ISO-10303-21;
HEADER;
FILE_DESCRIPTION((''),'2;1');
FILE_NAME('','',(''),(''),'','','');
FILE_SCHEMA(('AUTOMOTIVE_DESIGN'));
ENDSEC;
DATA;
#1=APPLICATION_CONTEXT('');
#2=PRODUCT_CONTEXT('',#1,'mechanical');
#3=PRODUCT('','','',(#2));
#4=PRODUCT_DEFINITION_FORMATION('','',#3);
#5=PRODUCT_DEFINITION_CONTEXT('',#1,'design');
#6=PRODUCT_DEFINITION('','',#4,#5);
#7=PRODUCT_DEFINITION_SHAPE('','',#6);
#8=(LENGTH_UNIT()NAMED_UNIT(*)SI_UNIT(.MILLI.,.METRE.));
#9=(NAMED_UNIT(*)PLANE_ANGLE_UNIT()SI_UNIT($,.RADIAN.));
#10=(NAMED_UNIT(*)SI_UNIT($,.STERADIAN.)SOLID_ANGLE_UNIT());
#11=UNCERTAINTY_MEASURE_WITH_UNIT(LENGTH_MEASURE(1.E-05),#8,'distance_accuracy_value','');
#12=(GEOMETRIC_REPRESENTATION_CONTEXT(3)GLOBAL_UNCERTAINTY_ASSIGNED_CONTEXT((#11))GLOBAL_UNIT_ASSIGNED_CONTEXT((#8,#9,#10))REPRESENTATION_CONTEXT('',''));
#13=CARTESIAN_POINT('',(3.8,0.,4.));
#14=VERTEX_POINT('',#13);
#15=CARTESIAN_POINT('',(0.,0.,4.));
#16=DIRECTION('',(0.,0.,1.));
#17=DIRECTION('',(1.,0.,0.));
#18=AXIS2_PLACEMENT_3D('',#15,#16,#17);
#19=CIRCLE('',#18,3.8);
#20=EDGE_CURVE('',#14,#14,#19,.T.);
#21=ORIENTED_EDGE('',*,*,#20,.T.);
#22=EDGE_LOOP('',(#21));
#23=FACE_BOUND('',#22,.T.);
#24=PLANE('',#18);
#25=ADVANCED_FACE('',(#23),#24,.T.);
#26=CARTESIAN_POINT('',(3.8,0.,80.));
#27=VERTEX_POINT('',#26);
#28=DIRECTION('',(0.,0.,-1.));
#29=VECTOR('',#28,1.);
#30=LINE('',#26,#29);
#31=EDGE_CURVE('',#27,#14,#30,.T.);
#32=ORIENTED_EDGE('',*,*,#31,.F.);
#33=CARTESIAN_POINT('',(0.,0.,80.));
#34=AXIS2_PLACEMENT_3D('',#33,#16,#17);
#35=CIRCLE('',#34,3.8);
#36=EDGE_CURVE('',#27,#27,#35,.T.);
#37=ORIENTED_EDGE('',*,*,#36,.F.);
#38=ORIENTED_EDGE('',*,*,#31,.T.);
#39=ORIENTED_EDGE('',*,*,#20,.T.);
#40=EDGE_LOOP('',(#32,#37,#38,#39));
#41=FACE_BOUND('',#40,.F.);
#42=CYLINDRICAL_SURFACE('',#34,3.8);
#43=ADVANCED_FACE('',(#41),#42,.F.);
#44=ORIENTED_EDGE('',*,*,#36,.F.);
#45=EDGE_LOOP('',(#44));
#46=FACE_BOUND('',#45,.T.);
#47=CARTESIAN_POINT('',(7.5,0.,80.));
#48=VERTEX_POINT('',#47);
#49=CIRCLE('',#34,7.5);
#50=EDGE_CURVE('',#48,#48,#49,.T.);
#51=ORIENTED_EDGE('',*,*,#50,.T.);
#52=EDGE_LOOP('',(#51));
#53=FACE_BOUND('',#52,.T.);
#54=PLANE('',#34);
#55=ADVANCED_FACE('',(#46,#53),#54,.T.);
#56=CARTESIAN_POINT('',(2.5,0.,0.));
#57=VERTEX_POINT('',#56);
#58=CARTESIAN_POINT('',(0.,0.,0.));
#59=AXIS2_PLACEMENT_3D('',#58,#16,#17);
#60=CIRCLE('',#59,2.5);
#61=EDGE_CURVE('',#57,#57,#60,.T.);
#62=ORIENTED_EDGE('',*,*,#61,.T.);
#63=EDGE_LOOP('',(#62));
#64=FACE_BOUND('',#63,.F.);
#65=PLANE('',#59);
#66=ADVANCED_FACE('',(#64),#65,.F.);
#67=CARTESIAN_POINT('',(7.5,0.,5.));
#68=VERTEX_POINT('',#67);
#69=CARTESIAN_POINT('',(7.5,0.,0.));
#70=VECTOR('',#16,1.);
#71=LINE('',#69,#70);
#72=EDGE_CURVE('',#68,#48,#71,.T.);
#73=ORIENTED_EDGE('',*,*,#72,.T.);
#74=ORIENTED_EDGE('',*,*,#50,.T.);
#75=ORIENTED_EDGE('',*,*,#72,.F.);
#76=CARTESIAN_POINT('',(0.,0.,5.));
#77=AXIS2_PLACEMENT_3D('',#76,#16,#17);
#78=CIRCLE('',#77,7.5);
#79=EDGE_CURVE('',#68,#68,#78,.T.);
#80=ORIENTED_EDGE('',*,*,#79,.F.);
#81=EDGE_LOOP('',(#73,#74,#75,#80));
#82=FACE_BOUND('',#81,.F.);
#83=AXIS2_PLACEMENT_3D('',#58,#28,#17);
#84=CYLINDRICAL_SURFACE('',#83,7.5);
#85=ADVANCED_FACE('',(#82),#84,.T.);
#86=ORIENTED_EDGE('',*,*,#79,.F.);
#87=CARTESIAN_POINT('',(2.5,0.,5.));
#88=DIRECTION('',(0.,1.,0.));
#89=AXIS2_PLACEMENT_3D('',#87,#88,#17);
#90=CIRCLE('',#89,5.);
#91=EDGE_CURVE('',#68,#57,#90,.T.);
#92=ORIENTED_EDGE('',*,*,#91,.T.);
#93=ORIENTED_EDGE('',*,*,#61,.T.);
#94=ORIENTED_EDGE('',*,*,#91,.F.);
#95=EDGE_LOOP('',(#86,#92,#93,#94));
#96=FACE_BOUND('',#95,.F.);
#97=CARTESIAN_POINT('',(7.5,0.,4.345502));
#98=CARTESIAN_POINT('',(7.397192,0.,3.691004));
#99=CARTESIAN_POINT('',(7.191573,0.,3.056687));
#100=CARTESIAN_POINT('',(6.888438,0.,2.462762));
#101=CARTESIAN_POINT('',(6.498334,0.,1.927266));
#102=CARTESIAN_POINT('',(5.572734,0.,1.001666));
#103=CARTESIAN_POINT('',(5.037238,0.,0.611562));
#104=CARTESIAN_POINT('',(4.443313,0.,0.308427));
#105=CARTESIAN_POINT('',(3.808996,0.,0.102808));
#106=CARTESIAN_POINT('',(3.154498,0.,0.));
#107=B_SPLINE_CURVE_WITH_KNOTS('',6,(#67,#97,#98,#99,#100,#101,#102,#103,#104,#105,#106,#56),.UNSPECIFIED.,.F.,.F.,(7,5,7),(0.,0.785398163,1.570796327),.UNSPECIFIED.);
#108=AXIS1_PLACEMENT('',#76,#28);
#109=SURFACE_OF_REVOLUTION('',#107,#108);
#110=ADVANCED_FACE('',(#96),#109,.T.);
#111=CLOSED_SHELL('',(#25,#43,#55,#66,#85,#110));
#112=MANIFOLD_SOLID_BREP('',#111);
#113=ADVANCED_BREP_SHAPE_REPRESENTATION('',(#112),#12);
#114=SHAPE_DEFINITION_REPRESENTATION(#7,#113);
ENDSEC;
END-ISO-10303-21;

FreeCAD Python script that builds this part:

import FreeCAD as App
import Part
import Sketcher

V = App.Vector


def edges_at(feature, points):
    """Names of the edges that pass closest to the given points."""
    edges = feature.Shape.Edges
    near = lambda p: min(range(len(edges)), key=lambda i: edges[i].distToShape(Part.Vertex(*p))[0])
    return sorted({f"Edge{near(p) + 1}" for p in points})

doc = App.newDocument("Part")
body = doc.addObject("PartDesign::Body", "Body")

# Sketch on XY plane
sketch1 = body.newObject("Sketcher::SketchObject", "Sketch")
sketch1.AttachmentSupport = (doc.getObject("XY_Plane"), [""])
sketch1.MapMode = "FlatFace"
sketch1.addGeometry(Part.Circle(V(0, 0, 0), V(0, 0, 1), 8), False)
sketch1.addConstraint(Sketcher.Constraint("Coincident", 0, 3, -1, 1))
sketch1.addConstraint(Sketcher.Constraint("Diameter", 0, 15.0))
pad1 = body.newObject("PartDesign::Pad", "Pad")
pad1.Profile = sketch1
pad1.Length = 80

# Sketch on XY plane
sketch2 = body.newObject("Sketcher::SketchObject", "Sketch001")
sketch2.AttachmentSupport = (doc.getObject("XY_Plane"), [""])
sketch2.MapMode = "FlatFace"
sketch2.AttachmentOffset = App.Placement(V(0, 0, 80), App.Rotation())
sketch2.addGeometry(Part.Circle(V(0, 0, 0), V(0, 0, 1), 3.8), False)
sketch2.addConstraint(Sketcher.Constraint("Coincident", 0, 3, -1, 1))
sketch2.addConstraint(Sketcher.Constraint("Diameter", 0, 7.6))
pocket1 = body.newObject("PartDesign::Pocket", "Pocket")
pocket1.Profile = sketch2
pocket1.Length = 76
doc.recompute()

fillet = body.newObject("PartDesign::Fillet", "Fillet")
fillet.Base = (pocket1, edges_at(pocket1, [(-7.5, 0, 0)]))
fillet.Radius = 5

doc.recompute()
